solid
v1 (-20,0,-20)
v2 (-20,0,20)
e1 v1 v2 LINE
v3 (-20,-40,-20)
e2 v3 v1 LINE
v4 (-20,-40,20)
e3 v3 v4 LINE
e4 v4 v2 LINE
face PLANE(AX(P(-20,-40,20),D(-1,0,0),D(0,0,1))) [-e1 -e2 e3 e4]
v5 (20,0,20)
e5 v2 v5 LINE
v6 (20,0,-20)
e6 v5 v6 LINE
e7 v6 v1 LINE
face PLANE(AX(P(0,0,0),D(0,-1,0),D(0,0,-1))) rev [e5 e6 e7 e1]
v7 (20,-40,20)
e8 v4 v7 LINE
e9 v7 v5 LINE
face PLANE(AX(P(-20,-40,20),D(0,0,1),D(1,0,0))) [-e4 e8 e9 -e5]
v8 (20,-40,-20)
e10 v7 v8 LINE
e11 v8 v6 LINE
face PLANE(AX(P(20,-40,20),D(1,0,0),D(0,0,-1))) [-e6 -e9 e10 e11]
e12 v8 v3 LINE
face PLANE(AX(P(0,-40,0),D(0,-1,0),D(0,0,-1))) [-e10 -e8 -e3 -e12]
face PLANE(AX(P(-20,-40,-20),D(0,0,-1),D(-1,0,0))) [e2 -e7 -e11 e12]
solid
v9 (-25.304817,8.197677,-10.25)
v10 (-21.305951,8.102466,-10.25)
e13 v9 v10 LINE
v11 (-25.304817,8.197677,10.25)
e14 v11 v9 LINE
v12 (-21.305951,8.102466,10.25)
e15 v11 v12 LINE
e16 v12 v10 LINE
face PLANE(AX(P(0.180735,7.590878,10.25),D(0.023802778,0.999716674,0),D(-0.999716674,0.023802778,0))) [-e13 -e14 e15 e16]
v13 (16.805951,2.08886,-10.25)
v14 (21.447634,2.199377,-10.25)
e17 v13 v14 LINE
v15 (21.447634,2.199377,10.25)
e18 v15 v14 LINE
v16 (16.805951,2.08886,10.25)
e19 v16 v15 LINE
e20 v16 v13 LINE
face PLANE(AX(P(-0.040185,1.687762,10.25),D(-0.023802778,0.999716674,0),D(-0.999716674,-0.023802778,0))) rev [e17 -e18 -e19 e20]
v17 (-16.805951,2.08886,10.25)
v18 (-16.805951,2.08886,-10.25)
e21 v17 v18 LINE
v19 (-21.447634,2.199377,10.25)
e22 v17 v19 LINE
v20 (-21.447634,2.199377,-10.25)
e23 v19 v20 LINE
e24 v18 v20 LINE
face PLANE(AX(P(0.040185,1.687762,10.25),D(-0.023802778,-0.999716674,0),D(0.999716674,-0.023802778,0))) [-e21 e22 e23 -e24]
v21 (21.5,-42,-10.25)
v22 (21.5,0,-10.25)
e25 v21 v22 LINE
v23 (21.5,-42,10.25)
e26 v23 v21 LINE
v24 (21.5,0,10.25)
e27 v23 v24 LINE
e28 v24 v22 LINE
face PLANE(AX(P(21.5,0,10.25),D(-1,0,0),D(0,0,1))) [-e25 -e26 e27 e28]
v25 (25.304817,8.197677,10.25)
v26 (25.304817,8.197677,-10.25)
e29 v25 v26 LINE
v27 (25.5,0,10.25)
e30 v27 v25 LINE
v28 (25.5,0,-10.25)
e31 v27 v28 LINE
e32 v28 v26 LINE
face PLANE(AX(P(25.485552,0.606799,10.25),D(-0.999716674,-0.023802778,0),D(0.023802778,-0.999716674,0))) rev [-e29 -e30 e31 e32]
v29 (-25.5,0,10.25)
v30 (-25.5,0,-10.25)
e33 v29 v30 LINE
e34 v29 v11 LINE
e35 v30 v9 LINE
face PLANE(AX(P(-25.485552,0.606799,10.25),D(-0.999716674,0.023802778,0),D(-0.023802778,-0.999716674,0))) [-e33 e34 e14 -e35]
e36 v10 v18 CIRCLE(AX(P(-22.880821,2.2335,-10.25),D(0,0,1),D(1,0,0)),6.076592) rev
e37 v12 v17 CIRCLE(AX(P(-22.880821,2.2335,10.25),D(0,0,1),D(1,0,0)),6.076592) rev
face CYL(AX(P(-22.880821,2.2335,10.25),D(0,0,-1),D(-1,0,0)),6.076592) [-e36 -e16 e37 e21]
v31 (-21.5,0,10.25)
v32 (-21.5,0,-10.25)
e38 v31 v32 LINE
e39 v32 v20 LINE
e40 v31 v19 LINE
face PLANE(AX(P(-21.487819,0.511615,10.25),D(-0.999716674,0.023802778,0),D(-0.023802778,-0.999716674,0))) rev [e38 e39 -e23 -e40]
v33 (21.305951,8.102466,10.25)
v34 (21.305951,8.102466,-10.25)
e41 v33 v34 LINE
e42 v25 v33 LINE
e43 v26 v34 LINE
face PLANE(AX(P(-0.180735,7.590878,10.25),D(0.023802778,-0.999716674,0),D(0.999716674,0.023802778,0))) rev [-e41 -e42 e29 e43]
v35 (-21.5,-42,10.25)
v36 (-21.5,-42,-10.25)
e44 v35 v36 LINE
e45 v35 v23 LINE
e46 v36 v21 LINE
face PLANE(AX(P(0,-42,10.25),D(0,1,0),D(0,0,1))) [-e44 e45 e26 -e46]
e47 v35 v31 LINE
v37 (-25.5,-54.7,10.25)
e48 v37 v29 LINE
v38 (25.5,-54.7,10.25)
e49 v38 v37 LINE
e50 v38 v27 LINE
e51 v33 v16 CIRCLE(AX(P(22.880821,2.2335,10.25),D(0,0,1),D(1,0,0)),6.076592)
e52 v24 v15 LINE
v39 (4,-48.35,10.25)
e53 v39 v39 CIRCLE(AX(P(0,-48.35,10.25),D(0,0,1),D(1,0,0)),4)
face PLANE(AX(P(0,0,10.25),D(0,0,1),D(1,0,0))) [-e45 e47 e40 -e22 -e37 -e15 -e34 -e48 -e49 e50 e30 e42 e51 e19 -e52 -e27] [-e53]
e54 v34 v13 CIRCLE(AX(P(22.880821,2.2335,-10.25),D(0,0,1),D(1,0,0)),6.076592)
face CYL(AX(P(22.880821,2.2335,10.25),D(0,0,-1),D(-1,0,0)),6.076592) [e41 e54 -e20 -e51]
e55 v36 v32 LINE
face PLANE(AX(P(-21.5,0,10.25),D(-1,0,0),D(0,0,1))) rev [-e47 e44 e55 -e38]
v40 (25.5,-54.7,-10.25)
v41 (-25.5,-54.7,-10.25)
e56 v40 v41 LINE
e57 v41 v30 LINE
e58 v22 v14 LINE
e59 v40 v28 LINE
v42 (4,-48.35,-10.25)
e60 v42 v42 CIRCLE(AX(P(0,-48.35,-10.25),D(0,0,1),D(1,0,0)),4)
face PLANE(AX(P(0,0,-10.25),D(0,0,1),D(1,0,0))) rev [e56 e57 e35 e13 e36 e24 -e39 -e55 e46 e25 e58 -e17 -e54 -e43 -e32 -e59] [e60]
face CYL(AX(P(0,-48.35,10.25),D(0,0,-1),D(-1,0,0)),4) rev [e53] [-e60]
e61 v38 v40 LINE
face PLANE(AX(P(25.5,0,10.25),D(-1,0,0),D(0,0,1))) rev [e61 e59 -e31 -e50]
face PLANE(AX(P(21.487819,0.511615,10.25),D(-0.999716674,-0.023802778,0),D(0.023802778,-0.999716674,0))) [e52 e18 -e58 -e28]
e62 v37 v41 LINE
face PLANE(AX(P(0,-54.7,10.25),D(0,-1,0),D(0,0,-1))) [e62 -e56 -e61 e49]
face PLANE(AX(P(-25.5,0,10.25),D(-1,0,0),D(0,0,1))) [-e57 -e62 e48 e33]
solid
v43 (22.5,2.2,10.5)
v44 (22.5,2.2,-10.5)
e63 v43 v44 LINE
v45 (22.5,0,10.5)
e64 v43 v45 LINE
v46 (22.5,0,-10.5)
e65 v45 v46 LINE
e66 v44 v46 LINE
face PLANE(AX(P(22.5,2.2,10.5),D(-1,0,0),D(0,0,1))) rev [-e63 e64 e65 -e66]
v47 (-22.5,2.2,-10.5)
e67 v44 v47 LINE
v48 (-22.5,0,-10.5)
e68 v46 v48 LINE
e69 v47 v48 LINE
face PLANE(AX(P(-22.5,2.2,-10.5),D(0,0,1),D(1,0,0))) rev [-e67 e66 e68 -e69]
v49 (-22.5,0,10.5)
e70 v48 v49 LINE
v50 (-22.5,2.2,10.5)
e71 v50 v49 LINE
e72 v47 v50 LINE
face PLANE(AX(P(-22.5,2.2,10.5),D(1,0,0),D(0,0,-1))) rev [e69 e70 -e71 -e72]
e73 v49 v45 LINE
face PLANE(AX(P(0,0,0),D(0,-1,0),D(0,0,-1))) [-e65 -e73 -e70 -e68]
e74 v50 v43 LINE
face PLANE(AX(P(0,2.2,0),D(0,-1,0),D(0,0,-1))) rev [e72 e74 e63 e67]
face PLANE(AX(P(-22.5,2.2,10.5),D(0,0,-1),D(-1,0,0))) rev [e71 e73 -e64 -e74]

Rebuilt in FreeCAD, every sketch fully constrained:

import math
import FreeCAD as App
import Part
import Sketcher


def add_polygon(sketch, points):
    """Adds a closed chain of lines whose ends are joined by coincident constraints."""
    first, n = sketch.GeometryCount, len(points)
    for a, b in zip(points, points[1:] + points[:1]):
        sketch.addGeometry(Part.LineSegment(App.Vector(*a, 0), App.Vector(*b, 0)), False)
    for i in range(n):
        sketch.addConstraint(Sketcher.Constraint("Coincident", first + i, 2, first + (i + 1) % n, 1))

doc = App.newDocument("Part")
params = doc.addObject("Spreadsheet::Sheet", "Params")
for row, (alias, value) in enumerate([
    ("sketch1_width", "45 mm"),
    ("sketch1_height", "21 mm"),
    ("pad1_length", "2.2 mm"),
    ("sketch2_width", "40 mm"),
    ("pad2_length", "40 mm"),
    ("sketch3_diameter", "8 mm"),
    ("sketch3_width", "43 mm"),
    ("sketch3_width2", "51 mm"),
    ("sketch3_height", "42 mm"),
    ("sketch3_length", "4 mm"),
    ("pad3_length", "20.5 mm"),
], start=1):
    params.set(f"A{row}", alias)
    params.set(f"B{row}", "=" + value)
    params.setAlias(f"B{row}", alias)

body = doc.addObject("PartDesign::Body", "Body")

sketch1 = body.newObject("Sketcher::SketchObject", "Sketch")
sketch1.AttachmentSupport = (doc.getObject("XZ_Plane"), [""])
sketch1.MapMode = "FlatFace"
add_polygon(sketch1, [(-22, -10), (-22, 10), (22, 10), (22, -10)])
sketch1.addConstraint([
    Sketcher.Constraint("Vertical", 0),
    Sketcher.Constraint("Horizontal", 1),
    Sketcher.Constraint("Vertical", 2),
    Sketcher.Constraint("Horizontal", 3),
    Sketcher.Constraint("Symmetric", 0, 2, 2, 2, -1, 1),
    Sketcher.Constraint("DistanceX", 1, 1, 1, 2, 45.0),
    Sketcher.Constraint("DistanceY", 0, 1, 0, 2, 21.0),
])
sketch1.setExpression("Constraints[9]", "Params.sketch1_width")
sketch1.setExpression("Constraints[10]", "Params.sketch1_height")
pad1 = body.newObject("PartDesign::Pad", "Pad")
pad1.Profile = sketch1
pad1.setExpression("Length", "Params.pad1_length")
pad1.Reversed = True
body2 = doc.addObject("PartDesign::Body", "Body001")

sketch2 = body2.newObject("Sketcher::SketchObject", "Sketch001")
sketch2.AttachmentSupport = (doc.getObject("XZ_Plane001"), [""])
sketch2.MapMode = "FlatFace"
add_polygon(sketch2, [(-20, -20), (-20, 20), (20, 20), (20, -20)])
sketch2.addConstraint([
    Sketcher.Constraint("Vertical", 0),
    Sketcher.Constraint("Horizontal", 1),
    Sketcher.Constraint("Vertical", 2),
    Sketcher.Constraint("Horizontal", 3),
    Sketcher.Constraint("Symmetric", 0, 2, 2, 2, -1, 1),
    Sketcher.Constraint("Equal", 3, 0),
    Sketcher.Constraint("DistanceX", 1, 1, 1, 2, 40.0),
])
sketch2.setExpression("Constraints[10]", "Params.sketch2_width")
pad2 = body2.newObject("PartDesign::Pad", "Pad001")
pad2.Profile = sketch2
pad2.setExpression("Length", "Params.pad2_length")
body3 = doc.addObject("PartDesign::Body", "Body002")

sketch3 = body3.newObject("Sketcher::SketchObject", "Sketch002")
sketch3.AttachmentSupport = (doc.getObject("XY_Plane002"), [""])
sketch3.MapMode = "FlatFace"
sketch3.addGeometry([
    Part.LineSegment(App.Vector(25.5, -54.7, 0), App.Vector(25.5, 0, 0)),
    Part.LineSegment(App.Vector(25.5, 0, 0), App.Vector(25.3, 8.2, 0)),
    Part.LineSegment(App.Vector(25.3, 8.2, 0), App.Vector(21.3, 8.1, 0)),
    Part.ArcOfCircle(Part.Circle(App.Vector(22.9, 2.2, 0), App.Vector(0, 0, 1), 6.1), math.radians(105), math.radians(181)),
    Part.LineSegment(App.Vector(16.8, 2.1, 0), App.Vector(21.4, 2.2, 0)),
    Part.LineSegment(App.Vector(21.4, 2.2, 0), App.Vector(21.5, 0, 0)),
    Part.LineSegment(App.Vector(21.5, 0, 0), App.Vector(21.5, -42, 0)),
    Part.LineSegment(App.Vector(21.5, -42, 0), App.Vector(-21.5, -42, 0)),
    Part.LineSegment(App.Vector(-21.5, -42, 0), App.Vector(-21.5, 0, 0)),
    Part.LineSegment(App.Vector(-21.5, 0, 0), App.Vector(-21.4, 2.2, 0)),
    Part.LineSegment(App.Vector(-21.4, 2.2, 0), App.Vector(-16.8, 2.1, 0)),
    Part.ArcOfCircle(Part.Circle(App.Vector(-22.9, 2.2, 0), App.Vector(0, 0, 1), 6.1), math.radians(-1), math.radians(75)),
    Part.LineSegment(App.Vector(-21.3, 8.1, 0), App.Vector(-25.3, 8.2, 0)),
    Part.LineSegment(App.Vector(-25.3, 8.2, 0), App.Vector(-25.5, 0, 0)),
    Part.LineSegment(App.Vector(-25.5, 0, 0), App.Vector(-25.5, -54.7, 0)),
    Part.LineSegment(App.Vector(-25.5, -54.7, 0), App.Vector(25.5, -54.7, 0)),
    Part.Circle(App.Vector(0, -48.4, 0), App.Vector(0, 0, 1), 4),
], False)
sketch3.addConstraint([
    Sketcher.Constraint("Coincident", 0, 2, 1, 1),
    Sketcher.Constraint("Coincident", 1, 2, 2, 1),
    Sketcher.Constraint("Coincident", 2, 2, 3, 1),
    Sketcher.Constraint("Coincident", 3, 2, 4, 1),
    Sketcher.Constraint("Coincident", 4, 2, 5, 1),
    Sketcher.Constraint("Coincident", 5, 2, 6, 1),
    Sketcher.Constraint("Coincident", 6, 2, 7, 1),
    Sketcher.Constraint("Coincident", 7, 2, 8, 1),
    Sketcher.Constraint("Coincident", 8, 2, 9, 1),
    Sketcher.Constraint("Coincident", 9, 2, 10, 1),
    Sketcher.Constraint("Coincident", 10, 2, 11, 1),
    Sketcher.Constraint("Coincident", 11, 2, 12, 1),
    Sketcher.Constraint("Coincident", 12, 2, 13, 1),
    Sketcher.Constraint("Coincident", 13, 2, 14, 1),
    Sketcher.Constraint("Coincident", 14, 2, 15, 1),
    Sketcher.Constraint("Coincident", 15, 2, 0, 1),
    Sketcher.Constraint("Vertical", 0),
    Sketcher.Constraint("Vertical", 6),
    Sketcher.Constraint("Horizontal", 7),
    Sketcher.Constraint("Vertical", 8),
    Sketcher.Constraint("Vertical", 14),
    Sketcher.Constraint("Horizontal", 15),
    Sketcher.Constraint("Equal", 3, 11),
    Sketcher.Constraint("Symmetric", 5, 2, 8, 2, -1, 1),
    Sketcher.Constraint("Symmetric", 0, 2, 13, 2, -1, 1),
    Sketcher.Constraint("Symmetric", 3, 3, 11, 3, -2),
    Sketcher.Constraint("Symmetric", 4, 2, 9, 2, -2),
    Sketcher.Constraint("Symmetric", 1, 2, 12, 2, -2),
    Sketcher.Constraint("PointOnObject", 16, 3, -2),
    Sketcher.Constraint("PointOnObject", 0, 2, -1),
    Sketcher.Constraint("PointOnObject", 5, 2, -1),
    Sketcher.Constraint("Perpendicular", 1, 2),
    Sketcher.Constraint("Parallel", 2, 4),
    Sketcher.Constraint("Perpendicular", 4, 5),
    Sketcher.Constraint("Perpendicular", 9, 10),
    Sketcher.Constraint("Parallel", 10, 12),
    Sketcher.Constraint("Diameter", 16, 8.0),
    Sketcher.Constraint("DistanceX", 7, 2, 7, 1, 43.0),
    Sketcher.Constraint("DistanceX", 15, 1, 15, 2, 51.0),
    Sketcher.Constraint("DistanceY", 6, 2, 6, 1, 42.0),
    Sketcher.Constraint("Distance", 2, 4.0),
    Sketcher.Constraint("DistanceY", 0, 1, 0, 2, 54.7),
    Sketcher.Constraint("Distance", 1, 8.2),
    Sketcher.Constraint("Distance", 5, 2.2),
    Sketcher.Constraint("DistanceX", 3, 2, 2, 2, 4.5),
    Sketcher.Constraint("DistanceY", 16, 3, -1, 1, 48.35),
    Sketcher.Constraint("Distance", 4, 4.642999),
    Sketcher.Constraint("Radius", 3, 6.076592),
])
sketch3.setExpression("Constraints[36]", "Params.sketch3_diameter")
sketch3.setExpression("Constraints[37]", "Params.sketch3_width")
sketch3.setExpression("Constraints[38]", "Params.sketch3_width2")
sketch3.setExpression("Constraints[39]", "Params.sketch3_height")
sketch3.setExpression("Constraints[40]", "Params.sketch3_length")
pad3 = body3.newObject("PartDesign::Pad", "Pad002")
pad3.Profile = sketch3
pad3.setExpression("Length", "Params.pad3_length")
pad3.Midplane = True

doc.recompute()
